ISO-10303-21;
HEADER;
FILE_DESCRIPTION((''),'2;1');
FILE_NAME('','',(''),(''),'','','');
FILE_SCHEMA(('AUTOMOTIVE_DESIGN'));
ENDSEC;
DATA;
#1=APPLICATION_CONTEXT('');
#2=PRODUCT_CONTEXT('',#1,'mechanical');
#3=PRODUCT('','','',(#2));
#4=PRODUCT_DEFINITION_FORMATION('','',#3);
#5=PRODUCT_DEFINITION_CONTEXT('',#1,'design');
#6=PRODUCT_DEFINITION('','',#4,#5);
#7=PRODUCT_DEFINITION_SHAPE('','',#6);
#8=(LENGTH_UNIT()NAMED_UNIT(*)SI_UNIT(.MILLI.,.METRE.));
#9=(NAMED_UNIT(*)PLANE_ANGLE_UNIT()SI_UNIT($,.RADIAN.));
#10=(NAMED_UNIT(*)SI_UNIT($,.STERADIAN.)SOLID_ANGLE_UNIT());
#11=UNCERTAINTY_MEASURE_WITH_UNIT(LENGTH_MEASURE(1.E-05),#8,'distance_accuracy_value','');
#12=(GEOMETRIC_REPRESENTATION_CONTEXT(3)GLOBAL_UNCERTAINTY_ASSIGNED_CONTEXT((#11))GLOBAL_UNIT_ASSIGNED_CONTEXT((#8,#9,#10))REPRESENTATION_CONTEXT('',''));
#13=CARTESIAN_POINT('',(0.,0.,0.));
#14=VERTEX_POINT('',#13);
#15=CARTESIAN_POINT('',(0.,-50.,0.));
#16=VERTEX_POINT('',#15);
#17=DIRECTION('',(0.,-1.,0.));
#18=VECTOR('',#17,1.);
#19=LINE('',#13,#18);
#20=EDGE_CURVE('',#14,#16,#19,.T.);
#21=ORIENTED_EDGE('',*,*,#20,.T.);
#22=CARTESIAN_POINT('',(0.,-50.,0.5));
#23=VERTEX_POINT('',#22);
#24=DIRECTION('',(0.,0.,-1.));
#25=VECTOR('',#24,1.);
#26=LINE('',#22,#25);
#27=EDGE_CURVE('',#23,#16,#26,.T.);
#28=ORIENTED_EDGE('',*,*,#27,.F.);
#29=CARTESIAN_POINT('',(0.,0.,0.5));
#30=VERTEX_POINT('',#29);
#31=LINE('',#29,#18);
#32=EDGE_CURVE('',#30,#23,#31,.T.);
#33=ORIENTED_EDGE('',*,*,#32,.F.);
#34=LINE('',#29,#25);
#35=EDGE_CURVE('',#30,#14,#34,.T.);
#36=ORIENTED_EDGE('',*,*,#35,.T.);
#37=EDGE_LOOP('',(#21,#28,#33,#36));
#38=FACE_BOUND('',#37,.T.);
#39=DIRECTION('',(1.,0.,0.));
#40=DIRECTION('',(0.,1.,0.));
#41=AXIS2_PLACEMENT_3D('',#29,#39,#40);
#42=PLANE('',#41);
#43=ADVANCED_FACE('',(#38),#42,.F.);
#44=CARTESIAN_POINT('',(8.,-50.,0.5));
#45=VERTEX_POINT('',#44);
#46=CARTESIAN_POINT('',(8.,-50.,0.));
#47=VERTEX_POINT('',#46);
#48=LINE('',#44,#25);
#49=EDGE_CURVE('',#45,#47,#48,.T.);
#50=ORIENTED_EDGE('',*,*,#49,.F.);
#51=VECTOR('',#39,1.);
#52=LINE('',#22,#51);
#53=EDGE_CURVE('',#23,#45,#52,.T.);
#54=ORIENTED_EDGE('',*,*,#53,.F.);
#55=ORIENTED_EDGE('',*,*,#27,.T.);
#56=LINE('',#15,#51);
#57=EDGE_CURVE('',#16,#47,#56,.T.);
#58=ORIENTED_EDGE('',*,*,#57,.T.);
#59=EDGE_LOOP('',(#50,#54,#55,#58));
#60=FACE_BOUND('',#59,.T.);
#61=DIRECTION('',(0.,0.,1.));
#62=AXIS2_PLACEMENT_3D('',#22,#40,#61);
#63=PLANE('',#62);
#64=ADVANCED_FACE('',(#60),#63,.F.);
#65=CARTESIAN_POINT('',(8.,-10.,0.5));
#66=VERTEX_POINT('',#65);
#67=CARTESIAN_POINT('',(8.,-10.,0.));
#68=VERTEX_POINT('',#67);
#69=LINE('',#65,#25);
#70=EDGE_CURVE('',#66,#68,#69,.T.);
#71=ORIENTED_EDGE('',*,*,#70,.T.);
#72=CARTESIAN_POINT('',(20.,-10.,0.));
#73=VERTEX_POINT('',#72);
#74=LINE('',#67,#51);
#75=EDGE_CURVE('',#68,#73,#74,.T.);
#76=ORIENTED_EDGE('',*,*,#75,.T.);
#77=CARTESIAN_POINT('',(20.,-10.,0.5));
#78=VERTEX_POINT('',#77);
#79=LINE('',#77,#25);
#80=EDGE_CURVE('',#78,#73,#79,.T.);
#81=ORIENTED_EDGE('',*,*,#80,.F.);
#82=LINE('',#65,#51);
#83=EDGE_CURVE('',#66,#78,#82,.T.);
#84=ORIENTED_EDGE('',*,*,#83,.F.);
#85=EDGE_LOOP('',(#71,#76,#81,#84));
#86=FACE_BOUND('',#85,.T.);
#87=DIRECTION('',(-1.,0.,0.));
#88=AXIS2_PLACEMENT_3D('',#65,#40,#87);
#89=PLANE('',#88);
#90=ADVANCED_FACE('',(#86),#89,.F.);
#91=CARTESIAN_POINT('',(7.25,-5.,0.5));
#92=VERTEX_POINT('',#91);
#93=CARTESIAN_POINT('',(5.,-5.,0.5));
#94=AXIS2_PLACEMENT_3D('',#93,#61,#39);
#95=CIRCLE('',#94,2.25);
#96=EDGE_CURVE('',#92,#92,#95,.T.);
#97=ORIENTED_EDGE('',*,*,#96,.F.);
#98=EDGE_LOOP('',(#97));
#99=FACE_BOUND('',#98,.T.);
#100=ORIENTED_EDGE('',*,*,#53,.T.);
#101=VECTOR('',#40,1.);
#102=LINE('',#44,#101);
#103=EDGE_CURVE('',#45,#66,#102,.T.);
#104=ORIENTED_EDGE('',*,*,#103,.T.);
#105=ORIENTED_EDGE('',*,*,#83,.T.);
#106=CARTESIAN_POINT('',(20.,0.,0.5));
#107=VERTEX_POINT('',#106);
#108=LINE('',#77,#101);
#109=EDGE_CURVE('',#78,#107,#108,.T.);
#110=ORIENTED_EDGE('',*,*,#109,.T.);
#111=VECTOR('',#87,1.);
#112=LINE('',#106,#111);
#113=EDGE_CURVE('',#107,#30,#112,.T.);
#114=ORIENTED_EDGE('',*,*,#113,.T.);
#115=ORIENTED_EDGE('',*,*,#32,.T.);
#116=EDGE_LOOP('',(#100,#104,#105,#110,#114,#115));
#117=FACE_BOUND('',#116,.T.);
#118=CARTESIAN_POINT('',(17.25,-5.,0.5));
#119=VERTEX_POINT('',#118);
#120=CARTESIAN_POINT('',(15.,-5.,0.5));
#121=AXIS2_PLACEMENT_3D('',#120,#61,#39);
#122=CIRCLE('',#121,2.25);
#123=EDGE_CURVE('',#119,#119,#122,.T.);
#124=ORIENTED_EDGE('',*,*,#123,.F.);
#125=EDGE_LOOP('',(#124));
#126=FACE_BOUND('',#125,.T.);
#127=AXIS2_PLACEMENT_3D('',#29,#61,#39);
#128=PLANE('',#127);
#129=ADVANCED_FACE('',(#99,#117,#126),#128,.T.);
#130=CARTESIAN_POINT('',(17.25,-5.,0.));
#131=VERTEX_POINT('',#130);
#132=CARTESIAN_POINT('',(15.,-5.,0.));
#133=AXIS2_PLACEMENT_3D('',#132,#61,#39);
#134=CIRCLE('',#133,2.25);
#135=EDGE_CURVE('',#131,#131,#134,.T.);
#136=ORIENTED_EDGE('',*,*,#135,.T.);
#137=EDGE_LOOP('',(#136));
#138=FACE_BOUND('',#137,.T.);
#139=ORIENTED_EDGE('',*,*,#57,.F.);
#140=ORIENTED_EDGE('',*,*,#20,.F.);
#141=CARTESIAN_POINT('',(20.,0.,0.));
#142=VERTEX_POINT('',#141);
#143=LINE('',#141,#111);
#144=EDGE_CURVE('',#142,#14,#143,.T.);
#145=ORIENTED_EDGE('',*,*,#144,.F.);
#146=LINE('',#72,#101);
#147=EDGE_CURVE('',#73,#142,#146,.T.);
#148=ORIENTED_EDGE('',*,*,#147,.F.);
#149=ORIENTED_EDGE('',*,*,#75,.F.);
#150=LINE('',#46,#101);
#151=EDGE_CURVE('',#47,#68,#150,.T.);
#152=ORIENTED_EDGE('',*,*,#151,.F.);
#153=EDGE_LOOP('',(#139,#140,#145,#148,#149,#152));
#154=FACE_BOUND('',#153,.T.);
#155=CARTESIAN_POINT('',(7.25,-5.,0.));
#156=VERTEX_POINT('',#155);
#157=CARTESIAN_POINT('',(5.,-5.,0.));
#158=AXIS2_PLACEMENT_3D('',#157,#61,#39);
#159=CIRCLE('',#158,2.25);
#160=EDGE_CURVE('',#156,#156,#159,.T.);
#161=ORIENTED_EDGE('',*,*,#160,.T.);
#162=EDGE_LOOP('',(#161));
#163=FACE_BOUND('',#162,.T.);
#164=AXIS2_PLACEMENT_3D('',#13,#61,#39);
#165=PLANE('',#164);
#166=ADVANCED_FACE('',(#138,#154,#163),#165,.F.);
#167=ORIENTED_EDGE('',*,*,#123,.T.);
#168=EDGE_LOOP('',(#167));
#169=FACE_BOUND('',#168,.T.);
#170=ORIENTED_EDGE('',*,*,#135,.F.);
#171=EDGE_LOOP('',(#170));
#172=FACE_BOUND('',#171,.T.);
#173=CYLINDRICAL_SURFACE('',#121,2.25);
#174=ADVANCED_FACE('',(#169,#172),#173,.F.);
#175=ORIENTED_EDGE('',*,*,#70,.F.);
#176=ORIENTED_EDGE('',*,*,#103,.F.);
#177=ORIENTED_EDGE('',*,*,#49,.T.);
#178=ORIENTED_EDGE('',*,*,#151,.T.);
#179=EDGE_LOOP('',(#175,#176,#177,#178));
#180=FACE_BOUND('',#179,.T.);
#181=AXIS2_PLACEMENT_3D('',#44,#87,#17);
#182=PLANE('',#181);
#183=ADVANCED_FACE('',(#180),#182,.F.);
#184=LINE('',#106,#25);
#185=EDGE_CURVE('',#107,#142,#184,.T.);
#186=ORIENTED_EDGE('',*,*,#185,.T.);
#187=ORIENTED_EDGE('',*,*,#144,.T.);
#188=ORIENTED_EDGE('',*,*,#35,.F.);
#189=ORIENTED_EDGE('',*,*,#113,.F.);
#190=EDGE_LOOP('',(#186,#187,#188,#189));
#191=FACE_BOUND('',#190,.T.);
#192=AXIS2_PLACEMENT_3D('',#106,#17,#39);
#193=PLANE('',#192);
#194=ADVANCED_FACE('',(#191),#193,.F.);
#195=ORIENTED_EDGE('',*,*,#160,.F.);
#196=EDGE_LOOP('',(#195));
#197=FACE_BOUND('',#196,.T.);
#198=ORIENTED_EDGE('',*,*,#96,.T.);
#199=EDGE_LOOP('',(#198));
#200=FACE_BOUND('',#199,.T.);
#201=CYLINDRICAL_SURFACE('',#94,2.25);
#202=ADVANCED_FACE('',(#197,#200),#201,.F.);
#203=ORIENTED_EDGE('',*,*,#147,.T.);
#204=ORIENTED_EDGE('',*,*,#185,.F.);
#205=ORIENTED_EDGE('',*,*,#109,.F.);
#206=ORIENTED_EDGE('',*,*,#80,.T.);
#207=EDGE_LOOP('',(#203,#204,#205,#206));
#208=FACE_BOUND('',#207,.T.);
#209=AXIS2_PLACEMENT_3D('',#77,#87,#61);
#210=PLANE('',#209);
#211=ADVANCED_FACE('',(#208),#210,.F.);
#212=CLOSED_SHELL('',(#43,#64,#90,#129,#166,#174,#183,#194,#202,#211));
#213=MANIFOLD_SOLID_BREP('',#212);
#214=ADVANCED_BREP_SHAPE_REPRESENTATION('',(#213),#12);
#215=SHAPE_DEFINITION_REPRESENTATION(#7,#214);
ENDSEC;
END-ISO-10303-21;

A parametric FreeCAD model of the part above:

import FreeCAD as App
import Part
import Sketcher
from FreeCAD import Vector


def add_polygon(sketch, points):
    """Adds a closed chain of lines whose ends are joined by coincident constraints."""
    first, n = sketch.GeometryCount, len(points)
    for a, b in zip(points, points[1:] + points[:1]):
        sketch.addGeometry(Part.LineSegment(App.Vector(*a, 0), App.Vector(*b, 0)), False)
    for i in range(n):
        sketch.addConstraint(Sketcher.Constraint("Coincident", first + i, 2, first + (i + 1) % n, 1))

doc = App.newDocument("Part")
body = doc.addObject("PartDesign::Body", "Body")

sketch1 = body.newObject("Sketcher::SketchObject", "Sketch")
sketch1.AttachmentSupport = (doc.getObject("XY_Plane"), [""])
sketch1.MapMode = "FlatFace"
add_polygon(sketch1, [(0, 0), (0, -50), (8, -50), (8, -10), (20, -10), (20, 0)])
sketch1.addGeometry(Part.Circle(Vector(5, -5, 0), Vector(0, 0, 1), 1.25), False)
sketch1.addGeometry(Part.Circle(Vector(15, -5, 0), Vector(0, 0, 1), 1.25), False)
sketch1.addConstraint(Sketcher.Constraint("Vertical", 0))
sketch1.addConstraint(Sketcher.Constraint("Horizontal", 1))
sketch1.addConstraint(Sketcher.Constraint("Vertical", 2))
sketch1.addConstraint(Sketcher.Constraint("Horizontal", 3))
sketch1.addConstraint(Sketcher.Constraint("Vertical", 4))
sketch1.addConstraint(Sketcher.Constraint("Horizontal", 5))
sketch1.addConstraint(Sketcher.Constraint("Coincident", 5, 2, -1, 1))
sketch1.addConstraint(Sketcher.Constraint("Equal", 6, 7))
sketch1.addConstraint(Sketcher.Constraint("Horizontal", 6, 3, 7, 3))
sketch1.addConstraint(Sketcher.Constraint("Diameter", 6, 2.5))
sketch1.addConstraint(Sketcher.Constraint("DistanceX", 1, 1, 1, 2, 8.0))
sketch1.addConstraint(Sketcher.Constraint("DistanceX", 3, 1, 3, 2, 12.0))
sketch1.addConstraint(Sketcher.Constraint("DistanceY", 0, 2, 0, 1, 50.0))
sketch1.addConstraint(Sketcher.Constraint("DistanceY", 2, 1, 2, 2, 40.0))
sketch1.addConstraint(Sketcher.Constraint("DistanceX", -1, 1, 6, 3, 5.0))
sketch1.addConstraint(Sketcher.Constraint("DistanceY", 6, 3, -1, 1, 5.0))
sketch1.addConstraint(Sketcher.Constraint("DistanceX", -1, 1, 7, 3, 15.0))
pad1 = body.newObject("PartDesign::Pad", "Pad")
pad1.Profile = sketch1
pad1.Length = 0.5

sketch2 = body.newObject("Sketcher::SketchObject", "Sketch001")
sketch2.AttachmentSupport = (doc.getObject("XY_Plane"), [""])
sketch2.MapMode = "FlatFace"
sketch2.AttachmentOffset = App.Placement(Vector(0, 0, 0.5), App.Rotation())
sketch2.addGeometry(Part.Circle(Vector(5, -5, 0), Vector(0, 0, 1), 2.25), False)
sketch2.addGeometry(Part.Circle(Vector(15, -5, 0), Vector(0, 0, 1), 2.25), False)
sketch2.addConstraint(Sketcher.Constraint("Equal", 0, 1))
sketch2.addConstraint(Sketcher.Constraint("Horizontal", 0, 3, 1, 3))
sketch2.addConstraint(Sketcher.Constraint("Diameter", 0, 4.5))
sketch2.addConstraint(Sketcher.Constraint("DistanceX", -1, 1, 0, 3, 5.0))
sketch2.addConstraint(Sketcher.Constraint("DistanceY", 0, 3, -1, 1, 5.0))
sketch2.addConstraint(Sketcher.Constraint("DistanceX", -1, 1, 1, 3, 15.0))
doc.recompute()
hole = body.newObject("PartDesign::Hole", "Hole")
hole.Profile = sketch2
hole.ThreadType = "None"
hole.Diameter = 4.5
hole.DepthType = "Dimension"
hole.Depth = 16
hole.DrillPoint = "Flat"

doc.recompute()
